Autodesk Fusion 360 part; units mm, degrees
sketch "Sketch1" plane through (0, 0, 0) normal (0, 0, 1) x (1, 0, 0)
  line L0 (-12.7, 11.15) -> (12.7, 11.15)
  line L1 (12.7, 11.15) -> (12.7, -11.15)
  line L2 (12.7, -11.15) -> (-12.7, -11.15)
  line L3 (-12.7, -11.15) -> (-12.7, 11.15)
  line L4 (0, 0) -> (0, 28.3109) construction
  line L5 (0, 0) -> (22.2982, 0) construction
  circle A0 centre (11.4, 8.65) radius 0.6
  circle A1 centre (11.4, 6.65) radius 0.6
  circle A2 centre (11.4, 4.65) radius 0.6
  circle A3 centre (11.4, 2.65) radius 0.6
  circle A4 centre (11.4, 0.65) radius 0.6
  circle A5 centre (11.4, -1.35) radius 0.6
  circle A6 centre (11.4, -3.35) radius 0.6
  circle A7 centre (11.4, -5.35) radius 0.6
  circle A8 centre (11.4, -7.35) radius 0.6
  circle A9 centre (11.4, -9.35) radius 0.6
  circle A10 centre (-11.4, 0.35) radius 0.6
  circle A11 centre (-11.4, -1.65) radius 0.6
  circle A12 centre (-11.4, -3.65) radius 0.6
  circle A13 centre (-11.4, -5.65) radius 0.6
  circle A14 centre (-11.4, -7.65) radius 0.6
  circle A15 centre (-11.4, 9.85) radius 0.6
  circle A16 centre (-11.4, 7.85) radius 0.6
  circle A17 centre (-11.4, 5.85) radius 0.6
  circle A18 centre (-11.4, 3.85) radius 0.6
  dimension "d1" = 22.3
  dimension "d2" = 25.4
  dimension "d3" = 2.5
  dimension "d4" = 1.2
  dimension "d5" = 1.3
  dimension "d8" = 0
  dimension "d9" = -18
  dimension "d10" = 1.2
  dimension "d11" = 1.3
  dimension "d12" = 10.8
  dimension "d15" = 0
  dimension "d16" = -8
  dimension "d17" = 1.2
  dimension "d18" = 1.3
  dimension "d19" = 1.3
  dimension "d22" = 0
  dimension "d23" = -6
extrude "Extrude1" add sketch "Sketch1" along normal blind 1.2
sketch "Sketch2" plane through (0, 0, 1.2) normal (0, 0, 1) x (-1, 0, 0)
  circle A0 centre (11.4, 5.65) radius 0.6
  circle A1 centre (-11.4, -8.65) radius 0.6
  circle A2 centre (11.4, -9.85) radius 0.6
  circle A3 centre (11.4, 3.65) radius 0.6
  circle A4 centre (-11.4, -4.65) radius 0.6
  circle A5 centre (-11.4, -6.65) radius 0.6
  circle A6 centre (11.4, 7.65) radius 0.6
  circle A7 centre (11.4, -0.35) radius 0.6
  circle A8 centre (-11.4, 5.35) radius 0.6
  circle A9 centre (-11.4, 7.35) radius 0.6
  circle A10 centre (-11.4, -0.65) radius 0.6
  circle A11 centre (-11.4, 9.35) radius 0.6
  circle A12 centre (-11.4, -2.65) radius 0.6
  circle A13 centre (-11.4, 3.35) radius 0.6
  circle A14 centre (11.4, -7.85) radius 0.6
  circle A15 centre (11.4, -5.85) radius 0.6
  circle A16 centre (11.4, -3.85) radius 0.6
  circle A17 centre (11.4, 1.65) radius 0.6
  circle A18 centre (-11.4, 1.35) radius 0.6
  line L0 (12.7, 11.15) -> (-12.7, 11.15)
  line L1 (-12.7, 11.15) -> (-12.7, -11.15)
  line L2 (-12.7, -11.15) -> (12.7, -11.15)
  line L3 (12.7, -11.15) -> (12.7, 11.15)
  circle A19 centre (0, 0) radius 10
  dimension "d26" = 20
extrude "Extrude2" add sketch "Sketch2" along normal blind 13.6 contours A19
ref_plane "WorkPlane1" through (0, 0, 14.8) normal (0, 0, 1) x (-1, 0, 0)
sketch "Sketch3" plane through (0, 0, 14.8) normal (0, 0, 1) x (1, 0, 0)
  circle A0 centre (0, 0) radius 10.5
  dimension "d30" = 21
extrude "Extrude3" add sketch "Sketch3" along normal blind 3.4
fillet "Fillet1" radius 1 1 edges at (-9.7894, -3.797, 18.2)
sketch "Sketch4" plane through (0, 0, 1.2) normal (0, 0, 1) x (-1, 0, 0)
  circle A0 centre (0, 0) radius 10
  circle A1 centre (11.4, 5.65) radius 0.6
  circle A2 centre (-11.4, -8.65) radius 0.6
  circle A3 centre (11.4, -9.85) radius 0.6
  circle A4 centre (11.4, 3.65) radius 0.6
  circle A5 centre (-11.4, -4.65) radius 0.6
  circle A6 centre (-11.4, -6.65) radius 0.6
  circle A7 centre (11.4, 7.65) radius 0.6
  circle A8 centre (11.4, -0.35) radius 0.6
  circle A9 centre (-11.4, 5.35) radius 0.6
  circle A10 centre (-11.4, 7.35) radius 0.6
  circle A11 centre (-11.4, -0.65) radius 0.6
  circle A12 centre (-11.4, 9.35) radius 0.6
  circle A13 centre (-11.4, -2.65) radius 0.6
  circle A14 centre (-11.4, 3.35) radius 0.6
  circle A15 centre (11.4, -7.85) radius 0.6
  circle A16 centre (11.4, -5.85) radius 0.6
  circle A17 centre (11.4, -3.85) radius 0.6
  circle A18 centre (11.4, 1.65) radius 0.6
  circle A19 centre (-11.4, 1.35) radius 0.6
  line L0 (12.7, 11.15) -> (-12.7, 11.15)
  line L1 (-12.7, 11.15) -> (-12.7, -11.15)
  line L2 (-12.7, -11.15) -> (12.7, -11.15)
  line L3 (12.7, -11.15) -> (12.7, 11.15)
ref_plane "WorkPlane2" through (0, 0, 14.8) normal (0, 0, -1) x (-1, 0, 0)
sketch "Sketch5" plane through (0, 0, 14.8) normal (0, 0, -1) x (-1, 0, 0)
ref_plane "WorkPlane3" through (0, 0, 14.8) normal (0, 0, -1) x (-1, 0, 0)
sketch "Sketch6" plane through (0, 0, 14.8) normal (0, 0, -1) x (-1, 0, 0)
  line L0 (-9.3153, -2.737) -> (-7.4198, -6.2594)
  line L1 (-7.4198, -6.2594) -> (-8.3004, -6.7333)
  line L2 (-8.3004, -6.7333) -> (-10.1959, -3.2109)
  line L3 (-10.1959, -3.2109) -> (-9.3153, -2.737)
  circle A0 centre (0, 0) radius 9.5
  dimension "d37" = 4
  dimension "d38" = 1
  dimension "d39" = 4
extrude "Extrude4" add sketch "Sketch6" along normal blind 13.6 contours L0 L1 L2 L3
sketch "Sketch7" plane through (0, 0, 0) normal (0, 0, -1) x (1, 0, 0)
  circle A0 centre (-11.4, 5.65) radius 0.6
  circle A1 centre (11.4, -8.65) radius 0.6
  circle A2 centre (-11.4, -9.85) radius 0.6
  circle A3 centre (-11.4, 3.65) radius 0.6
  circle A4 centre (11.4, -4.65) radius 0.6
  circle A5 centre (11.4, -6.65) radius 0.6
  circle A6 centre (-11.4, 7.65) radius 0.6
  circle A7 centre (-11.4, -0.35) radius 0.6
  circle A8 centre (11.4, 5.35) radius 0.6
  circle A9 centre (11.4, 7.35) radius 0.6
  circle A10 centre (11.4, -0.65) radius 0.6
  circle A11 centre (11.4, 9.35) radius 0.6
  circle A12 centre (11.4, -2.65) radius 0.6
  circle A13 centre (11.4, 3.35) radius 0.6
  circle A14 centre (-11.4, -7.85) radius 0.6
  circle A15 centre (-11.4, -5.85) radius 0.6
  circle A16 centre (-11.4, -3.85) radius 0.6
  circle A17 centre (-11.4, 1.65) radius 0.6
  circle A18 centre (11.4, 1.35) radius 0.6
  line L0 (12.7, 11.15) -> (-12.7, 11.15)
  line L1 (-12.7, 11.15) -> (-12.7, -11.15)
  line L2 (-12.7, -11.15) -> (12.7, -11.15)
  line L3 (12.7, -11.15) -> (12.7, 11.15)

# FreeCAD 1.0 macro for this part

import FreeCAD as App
import Part
import Sketcher
from FreeCAD import Vector


def edges_at(feature, points):
    """Names of the edges that pass closest to the given points."""
    edges = feature.Shape.Edges
    near = lambda p: min(range(len(edges)), key=lambda i: edges[i].distToShape(Part.Vertex(*p))[0])
    return sorted({f"Edge{near(p) + 1}" for p in points})


def add_polygon(sketch, points):
    """Adds a closed chain of lines whose ends are joined by coincident constraints."""
    first, n = sketch.GeometryCount, len(points)
    for a, b in zip(points, points[1:] + points[:1]):
        sketch.addGeometry(Part.LineSegment(App.Vector(*a, 0), App.Vector(*b, 0)), False)
    for i in range(n):
        sketch.addConstraint(Sketcher.Constraint("Coincident", first + i, 2, first + (i + 1) % n, 1))

doc = App.newDocument("Part")
params = doc.addObject("Spreadsheet::Sheet", "Params")
for row, (alias, value) in enumerate([
    ("sketch1_diameter", "1.2 mm"),
    ("sketch1_width", "25.4 mm"),
    ("sketch1_height", "22.3 mm"),
    ("pad1_length", "1.2 mm"),
    ("sketch2_diameter", "20 mm"),
    ("pad2_length", "13.6 mm"),
    ("sketch3_diameter", "21 mm"),
    ("pad3_length", "3.4 mm"),
    ("fillet_radius", "1 mm"),
    ("sketch4_length", "4 mm"),
    ("sketch4_length2", "1 mm"),
    ("pad4_length", "13.6 mm"),
], start=1):
    params.set(f"A{row}", alias)
    params.set(f"B{row}", "=" + value)
    params.setAlias(f"B{row}", alias)

body = doc.addObject("PartDesign::Body", "Body")

# Sketch on XY plane
sketch1 = doc.addObject("Sketcher::SketchObject", "Sketch")
body.addObject(sketch1)
sketch1.AttachmentSupport = (doc.XY_Plane, [""])
sketch1.MapMode = "FlatFace"
add_polygon(sketch1, [(12.7, 11.2), (-12.7, 11.2), (-12.7, -11.2), (12.7, -11.2)])  # lines 0-3
sketch1.addGeometry(Part.Circle(Vector(-11.4, -7.7, 0), Vector(0, 0, 1), 0.6), False)  # 4
sketch1.addGeometry(Part.Circle(Vector(-11.4, -5.7, 0), Vector(0, 0, 1), 0.6), False)  # 5
sketch1.addGeometry(Part.Circle(Vector(-11.4, -3.6, 0), Vector(0, 0, 1), 0.6), False)  # 6
sketch1.addGeometry(Part.Circle(Vector(-11.4, -1.6, 0), Vector(0, 0, 1), 0.6), False)  # 7
sketch1.addGeometry(Part.Circle(Vector(11.4, -9.3, 0), Vector(0, 0, 1), 0.6), False)  # 8
sketch1.addGeometry(Part.Circle(Vector(11.4, -7.3, 0), Vector(0, 0, 1), 0.6), False)  # 9
sketch1.addGeometry(Part.Circle(Vector(11.4, -5.3, 0), Vector(0, 0, 1), 0.6), False)  # 10
sketch1.addGeometry(Part.Circle(Vector(11.4, -3.4, 0), Vector(0, 0, 1), 0.6), False)  # 11
sketch1.addGeometry(Part.Circle(Vector(11.4, -1.4, 0), Vector(0, 0, 1), 0.6), False)  # 12
sketch1.addGeometry(Part.Circle(Vector(-11.4, 0.3, 0), Vector(0, 0, 1), 0.6), False)  # 13
sketch1.addGeometry(Part.Circle(Vector(-11.4, 3.9, 0), Vector(0, 0, 1), 0.6), False)  # 14
sketch1.addGeometry(Part.Circle(Vector(-11.4, 5.8, 0), Vector(0, 0, 1), 0.6), False)  # 15
sketch1.addGeometry(Part.Circle(Vector(-11.4, 7.8, 0), Vector(0, 0, 1), 0.6), False)  # 16
sketch1.addGeometry(Part.Circle(Vector(-11.4, 9.8, 0), Vector(0, 0, 1), 0.6), False)  # 17
sketch1.addGeometry(Part.Circle(Vector(11.4, 0.7, 0), Vector(0, 0, 1), 0.6), False)  # 18
sketch1.addGeometry(Part.Circle(Vector(11.4, 2.6, 0), Vector(0, 0, 1), 0.6), False)  # 19
sketch1.addGeometry(Part.Circle(Vector(11.4, 4.7, 0), Vector(0, 0, 1), 0.6), False)  # 20
sketch1.addGeometry(Part.Circle(Vector(11.4, 6.7, 0), Vector(0, 0, 1), 0.6), False)  # 21
sketch1.addGeometry(Part.Circle(Vector(11.4, 8.7, 0), Vector(0, 0, 1), 0.6), False)  # 22
sketch1.addConstraint(Sketcher.Constraint("Horizontal", 0))
sketch1.addConstraint(Sketcher.Constraint("Vertical", 1))
sketch1.addConstraint(Sketcher.Constraint("Horizontal", 2))
sketch1.addConstraint(Sketcher.Constraint("Vertical", 3))
sketch1.addConstraint(Sketcher.Constraint("Equal", 4, 5))
sketch1.addConstraint(Sketcher.Constraint("Equal", 5, 6))
sketch1.addConstraint(Sketcher.Constraint("Equal", 6, 7))
sketch1.addConstraint(Sketcher.Constraint("Equal", 7, 8))
sketch1.addConstraint(Sketcher.Constraint("Equal", 8, 9))
sketch1.addConstraint(Sketcher.Constraint("Equal", 9, 10))
sketch1.addConstraint(Sketcher.Constraint("Equal", 10, 11))
sketch1.addConstraint(Sketcher.Constraint("Equal", 11, 12))
sketch1.addConstraint(Sketcher.Constraint("Equal", 12, 13))
sketch1.addConstraint(Sketcher.Constraint("Equal", 13, 14))
sketch1.addConstraint(Sketcher.Constraint("Equal", 14, 15))
sketch1.addConstraint(Sketcher.Constraint("Equal", 15, 16))
sketch1.addConstraint(Sketcher.Constraint("Equal", 16, 17))
sketch1.addConstraint(Sketcher.Constraint("Equal", 17, 18))
sketch1.addConstraint(Sketcher.Constraint("Equal", 18, 19))
sketch1.addConstraint(Sketcher.Constraint("Equal", 19, 20))
sketch1.addConstraint(Sketcher.Constraint("Equal", 20, 21))
sketch1.addConstraint(Sketcher.Constraint("Equal", 21, 22))
sketch1.addConstraint(Sketcher.Constraint("Symmetric", 0, 2, 2, 2, -1, 1))
sketch1.addConstraint(Sketcher.Constraint("Vertical", 4, 3, 5, 3))
sketch1.addConstraint(Sketcher.Constraint("Vertical", 5, 3, 6, 3))
sketch1.addConstraint(Sketcher.Constraint("Vertical", 6, 3, 7, 3))
sketch1.addConstraint(Sketcher.Constraint("Vertical", 8, 3, 9, 3))
sketch1.addConstraint(Sketcher.Constraint("Vertical", 9, 3, 10, 3))
sketch1.addConstraint(Sketcher.Constraint("Vertical", 10, 3, 11, 3))
sketch1.addConstraint(Sketcher.Constraint("Vertical", 11, 3, 12, 3))
sketch1.addConstraint(Sketcher.Constraint("Vertical", 7, 3, 13, 3))
sketch1.addConstraint(Sketcher.Constraint("Vertical", 13, 3, 14, 3))
sketch1.addConstraint(Sketcher.Constraint("Vertical", 14, 3, 15, 3))
sketch1.addConstraint(Sketcher.Constraint("Vertical", 15, 3, 16, 3))
sketch1.addConstraint(Sketcher.Constraint("Vertical", 16, 3, 17, 3))
sketch1.addConstraint(Sketcher.Constraint("Vertical", 12, 3, 18, 3))
sketch1.addConstraint(Sketcher.Constraint("Vertical", 18, 3, 19, 3))
sketch1.addConstraint(Sketcher.Constraint("Vertical", 19, 3, 20, 3))
sketch1.addConstraint(Sketcher.Constraint("Vertical", 20, 3, 21, 3))
sketch1.addConstraint(Sketcher.Constraint("Vertical", 21, 3, 22, 3))
sketch1.addConstraint(Sketcher.Constraint("Diameter", 4, 1.2))
sketch1.addConstraint(Sketcher.Constraint("DistanceX", 0, 2, 0, 1, 25.4))
sketch1.addConstraint(Sketcher.Constraint("DistanceY", 1, 2, 1, 1, 22.3))
sketch1.addConstraint(Sketcher.Constraint("DistanceY", 4, 3, 7, 3, 6.0))
sketch1.addConstraint(Sketcher.Constraint("DistanceY", 8, 3, 11, 3, 6.0))
sketch1.addConstraint(Sketcher.Constraint("DistanceY", 9, 3, 12, 3, 6.0))
sketch1.addConstraint(Sketcher.Constraint("DistanceY", 8, 3, 12, 3, 8.0))
sketch1.addConstraint(Sketcher.Constraint("DistanceY", 5, 3, 13, 3, 6.0))
sketch1.addConstraint(Sketcher.Constraint("DistanceY", 4, 3, 13, 3, 8.0))
sketch1.addConstraint(Sketcher.Constraint("DistanceY", 14, 3, 17, 3, 6.0))
sketch1.addConstraint(Sketcher.Constraint("DistanceY", 10, 3, 18, 3, 6.0))
sketch1.addConstraint(Sketcher.Constraint("DistanceY", 9, 3, 18, 3, 8.0))
sketch1.addConstraint(Sketcher.Constraint("DistanceY", 11, 3, 19, 3, 6.0))
sketch1.addConstraint(Sketcher.Constraint("DistanceY", 12, 3, 20, 3, 6.0))
sketch1.addConstraint(Sketcher.Constraint("DistanceY", 18, 3, 21, 3, 6.0))
sketch1.addConstraint(Sketcher.Constraint("DistanceY", 19, 3, 22, 3, 6.0))
sketch1.addConstraint(Sketcher.Constraint("DistanceX", 0, 2, 17, 3, 1.3))
sketch1.addConstraint(Sketcher.Constraint("DistanceY", 17, 3, 0, 2, 1.3))
sketch1.addConstraint(Sketcher.Constraint("DistanceY", 13, 3, 0, 2, 10.8))
sketch1.addConstraint(Sketcher.Constraint("DistanceX", 8, 3, 2, 2, 1.3))
sketch1.addConstraint(Sketcher.Constraint("DistanceY", 22, 3, 3, 2, 2.5))
sketch1.addConstraint(Sketcher.Constraint("DistanceY", 5, 3, 6, 3, 2.0))
sketch1.addConstraint(Sketcher.Constraint("DistanceY", 14, 3, 15, 3, 2.0))
sketch1.addConstraint(Sketcher.Constraint("DistanceY", 15, 3, 16, 3, 2.0))
sketch1.setExpression("Constraints[44]", "Params.sketch1_diameter")
sketch1.setExpression("Constraints[45]", "Params.sketch1_width")
sketch1.setExpression("Constraints[46]", "Params.sketch1_height")
pad1 = doc.addObject("PartDesign::Pad", "Pad")
body.addObject(pad1)
pad1.Profile = sketch1
pad1.setExpression("Length", "Params.pad1_length")

# Sketch on XY plane
sketch2 = doc.addObject("Sketcher::SketchObject", "Sketch001")
body.addObject(sketch2)
sketch2.AttachmentSupport = (doc.XY_Plane, [""])
sketch2.MapMode = "FlatFace"
sketch2.AttachmentOffset = App.Placement(Vector(0, 0, 1.2), App.Rotation())
sketch2.addGeometry(Part.Circle(Vector(0, 0, 0), Vector(0, 0, 1), 10), False)
sketch2.addConstraint(Sketcher.Constraint("Coincident", 0, 3, -1, 1))
sketch2.addConstraint(Sketcher.Constraint("Diameter", 0, 20.0))
sketch2.setExpression("Constraints[1]", "Params.sketch2_diameter")
pad2 = doc.addObject("PartDesign::Pad", "Pad001")
body.addObject(pad2)
pad2.Profile = sketch2
pad2.setExpression("Length", "Params.pad2_length")

# Sketch on XY plane
sketch3 = doc.addObject("Sketcher::SketchObject", "Sketch002")
body.addObject(sketch3)
sketch3.AttachmentSupport = (doc.XY_Plane, [""])
sketch3.MapMode = "FlatFace"
sketch3.AttachmentOffset = App.Placement(Vector(0, 0, 14.8), App.Rotation())
sketch3.addGeometry(Part.Circle(Vector(0, 0, 0), Vector(0, 0, 1), 10), False)
sketch3.addConstraint(Sketcher.Constraint("Coincident", 0, 3, -1, 1))
sketch3.addConstraint(Sketcher.Constraint("Diameter", 0, 21.0))
sketch3.setExpression("Constraints[1]", "Params.sketch3_diameter")
pad3 = doc.addObject("PartDesign::Pad", "Pad002")
body.addObject(pad3)
pad3.Profile = sketch3
pad3.setExpression("Length", "Params.pad3_length")
doc.recompute()

fillet = doc.addObject("PartDesign::Fillet", "Fillet")
body.addObject(fillet)
fillet.Base = (pad3, edges_at(pad3, [(-9.789, -3.797, 18.2)]))
fillet.setExpression("Radius", "Params.fillet_radius")

# Sketch on XY plane
sketch4 = doc.addObject("Sketcher::SketchObject", "Sketch003")
body.addObject(sketch4)
sketch4.AttachmentSupport = (doc.XY_Plane, [""])
sketch4.MapMode = "FlatFace"
sketch4.AttachmentOffset = App.Placement(Vector(0, 0, 14.8), App.Rotation())
add_polygon(sketch4, [(7.4, -6.3), (9.3, -2.7), (10.2, -3.2), (8.3, -6.7)])  # lines 0-3
sketch4.addConstraint(Sketcher.Constraint("Perpendicular", 0, 1))
sketch4.addConstraint(Sketcher.Constraint("Perpendicular", 1, 2))
sketch4.addConstraint(Sketcher.Constraint("Perpendicular", 2, 3))
sketch4.addConstraint(Sketcher.Constraint("Distance", 0, 4.0))
sketch4.addConstraint(Sketcher.Constraint("Distance", 1, 1.0))
sketch4.addConstraint(Sketcher.Constraint("DistanceY", 0, 2, -1, 1, 2.737))
sketch4.addConstraint(Sketcher.Constraint("DistanceX", -1, 1, 1, 2, 10.196))
sketch4.addConstraint(Sketcher.Constraint("DistanceY", 1, 2, -1, 1, 3.211))
sketch4.setExpression("Constraints[7]", "Params.sketch4_length")
sketch4.setExpression("Constraints[8]", "Params.sketch4_length2")
pad4 = doc.addObject("PartDesign::Pad", "Pad003")
body.addObject(pad4)
pad4.Profile = sketch4
pad4.setExpression("Length", "Params.pad4_length")
pad4.Reversed = True

doc.recompute()
